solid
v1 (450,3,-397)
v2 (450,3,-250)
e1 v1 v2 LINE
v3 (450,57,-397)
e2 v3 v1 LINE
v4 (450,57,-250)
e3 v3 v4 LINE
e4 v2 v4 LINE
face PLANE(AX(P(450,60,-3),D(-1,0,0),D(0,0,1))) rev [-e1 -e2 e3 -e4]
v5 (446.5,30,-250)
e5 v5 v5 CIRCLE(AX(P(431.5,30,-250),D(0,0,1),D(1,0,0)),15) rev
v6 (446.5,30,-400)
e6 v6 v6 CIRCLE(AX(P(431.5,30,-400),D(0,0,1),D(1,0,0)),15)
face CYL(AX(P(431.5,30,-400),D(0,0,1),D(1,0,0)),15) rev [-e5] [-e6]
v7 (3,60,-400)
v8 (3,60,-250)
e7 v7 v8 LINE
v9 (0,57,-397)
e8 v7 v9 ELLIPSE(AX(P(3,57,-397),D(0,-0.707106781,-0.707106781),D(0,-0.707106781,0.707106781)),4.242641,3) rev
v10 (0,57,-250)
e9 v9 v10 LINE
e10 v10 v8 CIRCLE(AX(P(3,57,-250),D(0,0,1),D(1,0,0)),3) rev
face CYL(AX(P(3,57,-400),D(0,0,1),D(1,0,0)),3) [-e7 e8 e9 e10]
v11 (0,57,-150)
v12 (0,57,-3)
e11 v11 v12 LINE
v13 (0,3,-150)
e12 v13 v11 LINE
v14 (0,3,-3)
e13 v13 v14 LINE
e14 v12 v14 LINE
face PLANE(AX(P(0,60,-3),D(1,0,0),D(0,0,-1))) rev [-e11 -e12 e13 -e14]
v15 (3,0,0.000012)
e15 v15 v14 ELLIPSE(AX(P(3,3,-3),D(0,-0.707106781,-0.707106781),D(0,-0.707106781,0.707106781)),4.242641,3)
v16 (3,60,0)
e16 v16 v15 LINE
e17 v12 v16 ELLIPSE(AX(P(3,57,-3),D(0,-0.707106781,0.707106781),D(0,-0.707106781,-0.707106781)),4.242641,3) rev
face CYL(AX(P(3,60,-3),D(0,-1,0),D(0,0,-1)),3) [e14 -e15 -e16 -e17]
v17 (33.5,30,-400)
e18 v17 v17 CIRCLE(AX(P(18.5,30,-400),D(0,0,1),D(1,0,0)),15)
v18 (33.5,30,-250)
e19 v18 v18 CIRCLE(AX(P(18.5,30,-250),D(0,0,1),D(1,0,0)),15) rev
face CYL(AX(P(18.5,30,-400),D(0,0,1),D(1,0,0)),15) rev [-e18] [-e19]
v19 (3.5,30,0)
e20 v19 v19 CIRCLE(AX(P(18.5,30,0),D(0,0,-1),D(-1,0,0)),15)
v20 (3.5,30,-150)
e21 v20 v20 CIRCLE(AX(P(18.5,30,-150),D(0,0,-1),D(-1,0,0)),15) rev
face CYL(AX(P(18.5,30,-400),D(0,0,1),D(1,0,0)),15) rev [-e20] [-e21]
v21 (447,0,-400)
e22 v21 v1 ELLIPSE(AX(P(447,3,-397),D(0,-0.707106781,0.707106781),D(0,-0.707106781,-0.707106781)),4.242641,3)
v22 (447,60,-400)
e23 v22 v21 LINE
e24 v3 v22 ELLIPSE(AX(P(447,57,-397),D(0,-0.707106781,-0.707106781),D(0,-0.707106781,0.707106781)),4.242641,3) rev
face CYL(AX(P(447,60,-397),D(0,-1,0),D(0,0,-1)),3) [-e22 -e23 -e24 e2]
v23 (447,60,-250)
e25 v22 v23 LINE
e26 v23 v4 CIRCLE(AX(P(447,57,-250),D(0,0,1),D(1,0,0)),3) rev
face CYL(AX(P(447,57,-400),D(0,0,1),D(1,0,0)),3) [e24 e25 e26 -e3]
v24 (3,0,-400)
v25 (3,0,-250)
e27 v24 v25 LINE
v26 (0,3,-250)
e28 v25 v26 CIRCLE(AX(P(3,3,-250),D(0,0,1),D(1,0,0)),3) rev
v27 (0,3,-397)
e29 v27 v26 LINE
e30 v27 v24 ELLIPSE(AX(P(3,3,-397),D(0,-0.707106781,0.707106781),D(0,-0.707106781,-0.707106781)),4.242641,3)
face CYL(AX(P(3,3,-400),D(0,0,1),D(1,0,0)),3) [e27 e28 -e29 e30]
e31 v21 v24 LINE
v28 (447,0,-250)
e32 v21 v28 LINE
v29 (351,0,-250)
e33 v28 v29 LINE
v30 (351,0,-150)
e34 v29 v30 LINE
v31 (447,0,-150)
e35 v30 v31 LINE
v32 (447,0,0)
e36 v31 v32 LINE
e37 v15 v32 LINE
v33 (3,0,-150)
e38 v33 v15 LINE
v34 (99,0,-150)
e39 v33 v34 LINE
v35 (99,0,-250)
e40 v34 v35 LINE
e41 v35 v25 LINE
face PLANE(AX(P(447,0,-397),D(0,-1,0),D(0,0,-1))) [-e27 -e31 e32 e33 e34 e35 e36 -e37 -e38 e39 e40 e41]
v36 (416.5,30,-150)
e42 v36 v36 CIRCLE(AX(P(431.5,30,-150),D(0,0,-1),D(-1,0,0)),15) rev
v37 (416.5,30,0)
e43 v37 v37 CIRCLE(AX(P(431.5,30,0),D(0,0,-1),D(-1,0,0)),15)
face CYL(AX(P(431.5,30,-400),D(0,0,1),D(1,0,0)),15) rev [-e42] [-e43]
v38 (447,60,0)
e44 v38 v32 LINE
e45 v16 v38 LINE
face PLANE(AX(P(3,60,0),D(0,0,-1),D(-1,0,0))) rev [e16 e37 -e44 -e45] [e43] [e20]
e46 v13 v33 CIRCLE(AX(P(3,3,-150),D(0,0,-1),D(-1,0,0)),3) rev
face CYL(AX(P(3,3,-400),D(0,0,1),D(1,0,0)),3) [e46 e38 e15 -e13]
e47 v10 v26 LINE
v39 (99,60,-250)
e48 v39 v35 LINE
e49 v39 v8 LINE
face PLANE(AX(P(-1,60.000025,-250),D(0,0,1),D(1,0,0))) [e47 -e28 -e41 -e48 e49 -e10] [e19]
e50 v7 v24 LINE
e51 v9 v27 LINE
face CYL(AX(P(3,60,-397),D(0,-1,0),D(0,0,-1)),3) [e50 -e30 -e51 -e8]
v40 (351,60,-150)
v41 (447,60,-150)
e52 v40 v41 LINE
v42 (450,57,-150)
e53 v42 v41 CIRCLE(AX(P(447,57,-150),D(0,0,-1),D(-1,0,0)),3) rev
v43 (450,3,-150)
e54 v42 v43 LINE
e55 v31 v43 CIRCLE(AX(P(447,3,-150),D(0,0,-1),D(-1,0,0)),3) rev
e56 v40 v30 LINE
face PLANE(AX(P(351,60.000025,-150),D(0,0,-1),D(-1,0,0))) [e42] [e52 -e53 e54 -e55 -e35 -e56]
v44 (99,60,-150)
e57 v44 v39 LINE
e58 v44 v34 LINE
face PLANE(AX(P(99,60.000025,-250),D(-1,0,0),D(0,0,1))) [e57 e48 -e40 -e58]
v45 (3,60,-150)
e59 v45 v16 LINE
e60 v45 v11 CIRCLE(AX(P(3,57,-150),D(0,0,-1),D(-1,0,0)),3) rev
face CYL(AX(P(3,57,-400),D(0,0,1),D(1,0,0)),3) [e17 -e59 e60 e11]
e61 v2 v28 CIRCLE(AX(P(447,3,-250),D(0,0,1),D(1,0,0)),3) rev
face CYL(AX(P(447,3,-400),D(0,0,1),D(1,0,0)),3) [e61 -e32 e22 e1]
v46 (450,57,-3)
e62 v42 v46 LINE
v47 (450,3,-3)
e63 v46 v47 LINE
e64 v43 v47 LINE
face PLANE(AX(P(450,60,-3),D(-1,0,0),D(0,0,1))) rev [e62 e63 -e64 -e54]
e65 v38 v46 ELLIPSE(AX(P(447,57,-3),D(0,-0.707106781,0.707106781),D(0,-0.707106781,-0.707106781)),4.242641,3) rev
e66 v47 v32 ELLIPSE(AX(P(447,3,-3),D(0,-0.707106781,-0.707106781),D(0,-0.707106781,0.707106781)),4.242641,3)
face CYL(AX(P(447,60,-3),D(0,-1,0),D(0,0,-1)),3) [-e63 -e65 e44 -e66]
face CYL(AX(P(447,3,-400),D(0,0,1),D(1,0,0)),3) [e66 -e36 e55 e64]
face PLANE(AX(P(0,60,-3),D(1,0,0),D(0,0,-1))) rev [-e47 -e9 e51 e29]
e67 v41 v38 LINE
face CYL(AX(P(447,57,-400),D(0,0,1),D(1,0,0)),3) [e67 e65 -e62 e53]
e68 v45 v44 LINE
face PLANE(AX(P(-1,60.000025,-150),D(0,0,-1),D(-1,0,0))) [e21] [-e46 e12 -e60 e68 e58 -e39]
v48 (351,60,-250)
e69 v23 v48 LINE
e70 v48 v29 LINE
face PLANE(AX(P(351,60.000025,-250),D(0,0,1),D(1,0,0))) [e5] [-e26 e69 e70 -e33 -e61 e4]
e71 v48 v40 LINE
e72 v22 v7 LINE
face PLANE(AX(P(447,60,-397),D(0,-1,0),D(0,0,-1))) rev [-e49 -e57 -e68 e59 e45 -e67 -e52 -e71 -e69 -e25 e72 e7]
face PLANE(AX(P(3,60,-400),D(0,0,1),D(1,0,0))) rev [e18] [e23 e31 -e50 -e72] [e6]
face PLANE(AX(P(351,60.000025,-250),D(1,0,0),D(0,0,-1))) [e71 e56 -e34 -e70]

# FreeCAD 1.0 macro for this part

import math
import FreeCAD as App
import Part
import Sketcher

V = App.Vector

doc = App.newDocument("Part")
body = doc.addObject("PartDesign::Body", "Body")

# Sketch on XZ plane
sketch1 = doc.addObject("Sketcher::SketchObject", "Sketch")
body.addObject(sketch1)
sketch1.AttachmentSupport = (doc.XZ_Plane, [""])
sketch1.MapMode = "FlatFace"
sketch1.addGeometry(Part.LineSegment(V(3, 0, 0), V(447, 0, 0)), False)
sketch1.addGeometry(Part.ArcOfCircle(Part.Circle(V(447, -3, 0), V(0, 0, 1), 3), math.radians(0), math.radians(90)), False)
sketch1.addGeometry(Part.LineSegment(V(450, -3, 0), V(450, -397, 0)), False)
sketch1.addGeometry(Part.ArcOfCircle(Part.Circle(V(447, -397, 0), V(0, 0, 1), 3), math.radians(-90), math.radians(0)), False)
sketch1.addGeometry(Part.LineSegment(V(447, -400, 0), V(3, -400, 0)), False)
sketch1.addGeometry(Part.ArcOfCircle(Part.Circle(V(3, -397, 0), V(0, 0, 1), 3), math.radians(180), math.radians(270)), False)
sketch1.addGeometry(Part.LineSegment(V(0, -397, 0), V(0, -3, 0)), False)
sketch1.addGeometry(Part.ArcOfCircle(Part.Circle(V(3, -3, 0), V(0, 0, 1), 3), math.radians(90), math.radians(180)), False)
sketch1.addConstraint(Sketcher.Constraint("Tangent", 0, 2, 1, 2))
sketch1.addConstraint(Sketcher.Constraint("Tangent", 1, 1, 2, 1))
sketch1.addConstraint(Sketcher.Constraint("Tangent", 2, 2, 3, 2))
sketch1.addConstraint(Sketcher.Constraint("Tangent", 3, 1, 4, 1))
sketch1.addConstraint(Sketcher.Constraint("Tangent", 4, 2, 5, 2))
sketch1.addConstraint(Sketcher.Constraint("Tangent", 5, 1, 6, 1))
sketch1.addConstraint(Sketcher.Constraint("Tangent", 6, 2, 7, 2))
sketch1.addConstraint(Sketcher.Constraint("Tangent", 7, 1, 0, 1))
sketch1.addConstraint(Sketcher.Constraint("Horizontal", 0))
sketch1.addConstraint(Sketcher.Constraint("Vertical", 2))
sketch1.addConstraint(Sketcher.Constraint("Horizontal", 4))
sketch1.addConstraint(Sketcher.Constraint("Vertical", 6))
sketch1.addConstraint(Sketcher.Constraint("Equal", 1, 3))
sketch1.addConstraint(Sketcher.Constraint("Equal", 3, 5))
sketch1.addConstraint(Sketcher.Constraint("Equal", 5, 7))
sketch1.addConstraint(Sketcher.Constraint("PointOnObject", 0, 2, -1))
sketch1.addConstraint(Sketcher.Constraint("PointOnObject", 5, 1, -2))
sketch1.addConstraint(Sketcher.Constraint("Radius", 1, 3.0))
sketch1.addConstraint(Sketcher.Constraint("DistanceX", 0, 1, 0, 2, 444.0))
sketch1.addConstraint(Sketcher.Constraint("DistanceY", 2, 2, 2, 1, 394.0))
pad1 = doc.addObject("PartDesign::Pad", "Pad")
body.addObject(pad1)
pad1.Profile = sketch1
pad1.Length = 60
pad1.Reversed = True

# Sketch on XY plane
sketch2 = doc.addObject("Sketcher::SketchObject", "Sketch001")
body.addObject(sketch2)
sketch2.AttachmentSupport = (doc.XY_Plane, [""])
sketch2.MapMode = "FlatFace"
sketch2.addGeometry(Part.LineSegment(V(-61.506, 121.506, 0), V(-61.506, -61.506, 0)), False)
sketch2.addGeometry(Part.LineSegment(V(-61.506, -61.506, 0), V(511.506, -61.506, 0)), False)
sketch2.addGeometry(Part.LineSegment(V(511.506, -61.506, 0), V(511.506, 121.506, 0)), False)
sketch2.addGeometry(Part.LineSegment(V(511.506, 121.506, 0), V(-61.506, 121.506, 0)), False)
sketch2.addGeometry(Part.ArcOfCircle(Part.Circle(V(3, 57, 0), V(0, 0, 1), 3), math.radians(90), math.radians(180)), False)
sketch2.addGeometry(Part.LineSegment(V(3, 60, 0), V(447, 60, 0)), False)
sketch2.addGeometry(Part.ArcOfCircle(Part.Circle(V(447, 57, 0), V(0, 0, 1), 3), math.radians(0), math.radians(90)), False)
sketch2.addGeometry(Part.LineSegment(V(450, 57, 0), V(450, 3, 0)), False)
sketch2.addGeometry(Part.ArcOfCircle(Part.Circle(V(447, 3, 0), V(0, 0, 1), 3), math.radians(-90), math.radians(0)), False)
sketch2.addGeometry(Part.LineSegment(V(447, 0, 0), V(3, 0, 0)), False)
sketch2.addGeometry(Part.ArcOfCircle(Part.Circle(V(3, 3, 0), V(0, 0, 1), 3), math.radians(180), math.radians(270)), False)
sketch2.addGeometry(Part.LineSegment(V(0, 3, 0), V(0, 57, 0)), False)
sketch2.addGeometry(Part.Circle(V(18.5, 30, 0), V(0, 0, 1), 15), False)
sketch2.addGeometry(Part.Circle(V(431.5, 30, 0), V(0, 0, 1), 15), False)
sketch2.addConstraint(Sketcher.Constraint("Coincident", 0, 2, 1, 1))
sketch2.addConstraint(Sketcher.Constraint("Coincident", 1, 2, 2, 1))
sketch2.addConstraint(Sketcher.Constraint("Coincident", 2, 2, 3, 1))
sketch2.addConstraint(Sketcher.Constraint("Coincident", 3, 2, 0, 1))
sketch2.addConstraint(Sketcher.Constraint("Tangent", 4, 1, 5, 1))
sketch2.addConstraint(Sketcher.Constraint("Tangent", 5, 2, 6, 2))
sketch2.addConstraint(Sketcher.Constraint("Tangent", 6, 1, 7, 1))
sketch2.addConstraint(Sketcher.Constraint("Tangent", 7, 2, 8, 2))
sketch2.addConstraint(Sketcher.Constraint("Tangent", 8, 1, 9, 1))
sketch2.addConstraint(Sketcher.Constraint("Tangent", 9, 2, 10, 2))
sketch2.addConstraint(Sketcher.Constraint("Tangent", 10, 1, 11, 1))
sketch2.addConstraint(Sketcher.Constraint("Tangent", 11, 2, 4, 2))
sketch2.addConstraint(Sketcher.Constraint("Vertical", 0))
sketch2.addConstraint(Sketcher.Constraint("Horizontal", 1))
sketch2.addConstraint(Sketcher.Constraint("Vertical", 2))
sketch2.addConstraint(Sketcher.Constraint("Horizontal", 3))
sketch2.addConstraint(Sketcher.Constraint("Horizontal", 5))
sketch2.addConstraint(Sketcher.Constraint("Vertical", 7))
sketch2.addConstraint(Sketcher.Constraint("Horizontal", 9))
sketch2.addConstraint(Sketcher.Constraint("Vertical", 11))
sketch2.addConstraint(Sketcher.Constraint("Equal", 4, 6))
sketch2.addConstraint(Sketcher.Constraint("Equal", 6, 8))
sketch2.addConstraint(Sketcher.Constraint("Equal", 8, 10))
sketch2.addConstraint(Sketcher.Constraint("Equal", 12, 13))
sketch2.addConstraint(Sketcher.Constraint("PointOnObject", 8, 1, -1))
sketch2.addConstraint(Sketcher.Constraint("PointOnObject", 10, 1, -2))
sketch2.addConstraint(Sketcher.Constraint("Horizontal", 12, 3, 13, 3))
sketch2.addConstraint(Sketcher.Constraint("Diameter", 12, 30.0))
sketch2.addConstraint(Sketcher.Constraint("Radius", 4, 3.0))
sketch2.addConstraint(Sketcher.Constraint("DistanceX", 5, 1, 5, 2, 444.0))
sketch2.addConstraint(Sketcher.Constraint("DistanceY", 7, 2, 7, 1, 54.0))
sketch2.addConstraint(Sketcher.Constraint("DistanceY", -1, 1, 12, 3, 30.0))
sketch2.addConstraint(Sketcher.Constraint("DistanceX", 12, 3, 13, 3, 413.0))
sketch2.addConstraint(Sketcher.Constraint("DistanceX", -1, 1, 12, 3, 18.5))
sketch2.addConstraint(Sketcher.Constraint("DistanceX", 1, 1, 1, 2, 573.012))
sketch2.addConstraint(Sketcher.Constraint("DistanceY", 0, 2, 0, 1, 183.012))
sketch2.addConstraint(Sketcher.Constraint("DistanceX", 0, 2, -1, 1, 61.506))
sketch2.addConstraint(Sketcher.Constraint("DistanceY", 0, 2, -1, 1, 61.506))
pocket1 = doc.addObject("PartDesign::Pocket", "Pocket")
body.addObject(pocket1)
pocket1.Profile = sketch2
pocket1.Type = "ThroughAll"
pocket1.Midplane = True

# Sketch on XZ plane
sketch3 = doc.addObject("Sketcher::SketchObject", "Sketch002")
body.addObject(sketch3)
sketch3.AttachmentSupport = (doc.XZ_Plane, [""])
sketch3.MapMode = "FlatFace"
sketch3.addGeometry(Part.LineSegment(V(-1, -250, 0), V(-1, -150, 0)), False)
sketch3.addGeometry(Part.LineSegment(V(-1, -150, 0), V(99, -150, 0)), False)
sketch3.addGeometry(Part.LineSegment(V(99, -150, 0), V(99, -250, 0)), False)
sketch3.addGeometry(Part.LineSegment(V(99, -250, 0), V(-1, -250, 0)), False)
sketch3.addGeometry(Part.LineSegment(V(351, -250, 0), V(351, -150, 0)), False)
sketch3.addGeometry(Part.LineSegment(V(351, -150, 0), V(451, -150, 0)), False)
sketch3.addGeometry(Part.LineSegment(V(451, -150, 0), V(451, -250, 0)), False)
sketch3.addGeometry(Part.LineSegment(V(451, -250, 0), V(351, -250, 0)), False)
sketch3.addConstraint(Sketcher.Constraint("Coincident", 0, 2, 1, 1))
sketch3.addConstraint(Sketcher.Constraint("Coincident", 1, 2, 2, 1))
sketch3.addConstraint(Sketcher.Constraint("Coincident", 2, 2, 3, 1))
sketch3.addConstraint(Sketcher.Constraint("Coincident", 3, 2, 0, 1))
sketch3.addConstraint(Sketcher.Constraint("Coincident", 4, 2, 5, 1))
sketch3.addConstraint(Sketcher.Constraint("Coincident", 5, 2, 6, 1))
sketch3.addConstraint(Sketcher.Constraint("Coincident", 6, 2, 7, 1))
sketch3.addConstraint(Sketcher.Constraint("Coincident", 7, 2, 4, 1))
sketch3.addConstraint(Sketcher.Constraint("Vertical", 0))
sketch3.addConstraint(Sketcher.Constraint("Horizontal", 1))
sketch3.addConstraint(Sketcher.Constraint("Vertical", 2))
sketch3.addConstraint(Sketcher.Constraint("Horizontal", 3))
sketch3.addConstraint(Sketcher.Constraint("Vertical", 4))
sketch3.addConstraint(Sketcher.Constraint("Horizontal", 5))
sketch3.addConstraint(Sketcher.Constraint("Vertical", 6))
sketch3.addConstraint(Sketcher.Constraint("Horizontal", 7))
sketch3.addConstraint(Sketcher.Constraint("Horizontal", 1, 2, 4, 2))
sketch3.addConstraint(Sketcher.Constraint("Horizontal", 3, 2, 6, 2))
sketch3.addConstraint(Sketcher.Constraint("Equal", 3, 5))
sketch3.addConstraint(Sketcher.Constraint("Equal", 7, 0))
sketch3.addConstraint(Sketcher.Constraint("DistanceX", 1, 1, 1, 2, 100.0))
sketch3.addConstraint(Sketcher.Constraint("DistanceX", 0, 2, -1, 1, 1.0))
sketch3.addConstraint(Sketcher.Constraint("DistanceY", 0, 2, -1, 1, 150.0))
sketch3.addConstraint(Sketcher.Constraint("DistanceX", -1, 1, 4, 2, 351.0))
pocket2 = doc.addObject("PartDesign::Pocket", "Pocket001")
body.addObject(pocket2)
pocket2.Profile = sketch3
pocket2.Type = "ThroughAll"

doc.recompute()
